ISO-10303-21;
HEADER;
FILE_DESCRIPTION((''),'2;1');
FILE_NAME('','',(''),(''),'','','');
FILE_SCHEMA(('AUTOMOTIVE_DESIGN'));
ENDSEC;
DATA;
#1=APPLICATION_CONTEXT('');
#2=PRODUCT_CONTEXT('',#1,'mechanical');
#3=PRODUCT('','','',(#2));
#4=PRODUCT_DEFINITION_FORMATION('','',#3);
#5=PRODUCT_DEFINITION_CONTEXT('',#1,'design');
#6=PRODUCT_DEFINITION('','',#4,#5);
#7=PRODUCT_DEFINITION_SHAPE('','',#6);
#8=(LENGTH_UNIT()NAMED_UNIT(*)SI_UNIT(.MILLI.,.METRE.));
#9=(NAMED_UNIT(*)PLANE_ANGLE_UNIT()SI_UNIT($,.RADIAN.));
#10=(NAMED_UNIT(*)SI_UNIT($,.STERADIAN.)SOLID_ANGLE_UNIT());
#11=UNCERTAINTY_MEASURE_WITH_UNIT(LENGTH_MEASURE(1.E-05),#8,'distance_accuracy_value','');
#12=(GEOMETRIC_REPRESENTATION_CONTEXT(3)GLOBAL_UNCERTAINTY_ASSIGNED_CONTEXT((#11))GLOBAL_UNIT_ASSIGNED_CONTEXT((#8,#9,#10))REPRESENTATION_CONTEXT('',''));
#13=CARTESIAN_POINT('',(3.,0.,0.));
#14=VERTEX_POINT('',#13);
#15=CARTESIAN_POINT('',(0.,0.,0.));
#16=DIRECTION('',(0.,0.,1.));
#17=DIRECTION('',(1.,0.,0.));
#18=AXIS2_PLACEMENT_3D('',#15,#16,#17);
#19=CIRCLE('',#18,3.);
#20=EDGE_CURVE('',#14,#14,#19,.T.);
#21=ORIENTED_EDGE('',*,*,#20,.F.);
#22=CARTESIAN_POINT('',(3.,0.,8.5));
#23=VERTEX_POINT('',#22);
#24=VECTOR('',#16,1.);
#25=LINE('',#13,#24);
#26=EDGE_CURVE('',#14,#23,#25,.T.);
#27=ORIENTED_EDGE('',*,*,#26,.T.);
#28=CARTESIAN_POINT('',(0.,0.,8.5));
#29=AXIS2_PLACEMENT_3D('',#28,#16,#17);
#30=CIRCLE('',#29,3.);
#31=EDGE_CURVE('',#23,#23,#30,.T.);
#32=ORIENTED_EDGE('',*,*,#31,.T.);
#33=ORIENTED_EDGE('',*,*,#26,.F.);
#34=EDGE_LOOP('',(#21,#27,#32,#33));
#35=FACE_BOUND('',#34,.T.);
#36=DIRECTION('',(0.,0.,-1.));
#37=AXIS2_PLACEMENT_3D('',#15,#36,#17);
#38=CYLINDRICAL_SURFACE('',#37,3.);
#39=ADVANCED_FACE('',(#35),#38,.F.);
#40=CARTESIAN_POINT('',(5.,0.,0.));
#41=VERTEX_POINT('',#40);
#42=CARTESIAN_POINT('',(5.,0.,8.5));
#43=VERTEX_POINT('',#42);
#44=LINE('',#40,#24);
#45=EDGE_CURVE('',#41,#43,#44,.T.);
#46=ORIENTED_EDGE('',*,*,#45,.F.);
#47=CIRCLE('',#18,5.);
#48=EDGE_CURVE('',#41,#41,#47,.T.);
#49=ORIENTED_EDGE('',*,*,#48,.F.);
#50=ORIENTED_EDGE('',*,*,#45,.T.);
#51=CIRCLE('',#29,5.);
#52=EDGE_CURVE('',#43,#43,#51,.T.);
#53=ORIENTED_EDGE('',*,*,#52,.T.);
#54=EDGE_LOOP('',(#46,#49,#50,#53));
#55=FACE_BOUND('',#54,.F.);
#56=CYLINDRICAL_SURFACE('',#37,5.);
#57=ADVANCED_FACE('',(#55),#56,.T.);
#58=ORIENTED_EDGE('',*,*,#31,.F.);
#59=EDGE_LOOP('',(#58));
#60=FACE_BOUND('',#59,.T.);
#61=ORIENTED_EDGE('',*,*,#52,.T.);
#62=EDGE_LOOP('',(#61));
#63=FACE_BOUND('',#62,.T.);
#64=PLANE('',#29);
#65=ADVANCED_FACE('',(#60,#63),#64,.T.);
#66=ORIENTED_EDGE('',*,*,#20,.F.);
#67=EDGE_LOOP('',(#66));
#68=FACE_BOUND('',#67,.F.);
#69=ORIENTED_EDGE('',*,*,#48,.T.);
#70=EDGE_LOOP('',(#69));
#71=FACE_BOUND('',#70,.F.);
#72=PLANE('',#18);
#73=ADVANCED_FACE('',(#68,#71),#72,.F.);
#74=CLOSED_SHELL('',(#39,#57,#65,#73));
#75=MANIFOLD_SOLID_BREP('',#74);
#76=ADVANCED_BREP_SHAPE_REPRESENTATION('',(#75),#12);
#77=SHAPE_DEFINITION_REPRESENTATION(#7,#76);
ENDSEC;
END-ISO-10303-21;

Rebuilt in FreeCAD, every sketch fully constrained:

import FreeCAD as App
import Part
import Sketcher
from FreeCAD import Vector
Q = App.Units.Quantity

doc = App.newDocument("Part")
params = doc.addObject("Spreadsheet::Sheet", "Params")
for row, (alias, value) in enumerate([
    ("sketch1_diameter", "10 mm"),
    ("sketch1_diameter2", "6 mm"),
    ("pad1_length", "8.5 mm"),
], start=1):
    params.set(f"A{row}", alias)
    params.set(f"B{row}", "=" + value)
    params.setAlias(f"B{row}", alias)

body = doc.addObject("PartDesign::Body", "Body")

# Sketch on XY plane
sketch1 = doc.addObject("Sketcher::SketchObject", "Sketch")
body.addObject(sketch1)
sketch1.AttachmentSupport = (doc.XY_Plane, [""])
sketch1.MapMode = "FlatFace"
sketch1.addGeometry([
    Part.Circle(Vector(0, 0, 0), Vector(0, 0, 1), 5),
    Part.Circle(Vector(0, 0, 0), Vector(0, 0, 1), 3),
], False)
sketch1.addConstraint([
    Sketcher.Constraint("Coincident", 0, 3, -1, 1),
    Sketcher.Constraint("Coincident", 1, 3, -1, 1),
    Sketcher.Constraint("Diameter", 0, Q("10 mm")),
    Sketcher.Constraint("Diameter", 1, Q("6 mm")),
])
sketch1.setExpression("Constraints[2]", "Params.sketch1_diameter")
sketch1.setExpression("Constraints[3]", "Params.sketch1_diameter2")
pad1 = doc.addObject("PartDesign::Pad", "Pad")
body.addObject(pad1)
pad1.Profile = sketch1
pad1.setExpression("Length", "Params.pad1_length")

doc.recompute()
